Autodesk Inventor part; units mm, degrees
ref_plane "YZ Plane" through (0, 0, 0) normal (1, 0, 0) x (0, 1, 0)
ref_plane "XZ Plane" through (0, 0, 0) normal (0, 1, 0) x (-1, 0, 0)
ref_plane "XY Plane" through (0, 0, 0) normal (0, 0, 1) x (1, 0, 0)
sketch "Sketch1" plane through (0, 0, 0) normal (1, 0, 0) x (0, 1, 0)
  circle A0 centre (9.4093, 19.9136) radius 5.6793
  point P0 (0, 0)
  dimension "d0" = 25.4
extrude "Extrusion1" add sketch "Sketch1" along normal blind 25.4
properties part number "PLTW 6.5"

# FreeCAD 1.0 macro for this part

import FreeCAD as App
import Part
import Sketcher
from FreeCAD import Vector
Q = App.Units.Quantity

doc = App.newDocument("Part")
body = doc.addObject("PartDesign::Body", "Body")

# Sketch on YZ plane
sketch1 = body.newObject("Sketcher::SketchObject", "Sketch")
sketch1.AttachmentSupport = (doc.getObject("YZ_Plane"), [""])
sketch1.MapMode = "FlatFace"
sketch1.addGeometry(Part.Circle(Vector(9, 20, 0), Vector(0, 0, 1), 6), False)
sketch1.addConstraint([
    Sketcher.Constraint("Diameter", 0, Q("0.4472 in")),
    Sketcher.Constraint("DistanceY", -1, 1, 0, 3, Q("0.784 in")),
    Sketcher.Constraint("DistanceX", -1, 1, 0, 3, 9.4093),
])
pad1 = body.newObject("PartDesign::Pad", "Pad")
pad1.Profile = sketch1
pad1.Length = Q("1 in")

doc.recompute()
